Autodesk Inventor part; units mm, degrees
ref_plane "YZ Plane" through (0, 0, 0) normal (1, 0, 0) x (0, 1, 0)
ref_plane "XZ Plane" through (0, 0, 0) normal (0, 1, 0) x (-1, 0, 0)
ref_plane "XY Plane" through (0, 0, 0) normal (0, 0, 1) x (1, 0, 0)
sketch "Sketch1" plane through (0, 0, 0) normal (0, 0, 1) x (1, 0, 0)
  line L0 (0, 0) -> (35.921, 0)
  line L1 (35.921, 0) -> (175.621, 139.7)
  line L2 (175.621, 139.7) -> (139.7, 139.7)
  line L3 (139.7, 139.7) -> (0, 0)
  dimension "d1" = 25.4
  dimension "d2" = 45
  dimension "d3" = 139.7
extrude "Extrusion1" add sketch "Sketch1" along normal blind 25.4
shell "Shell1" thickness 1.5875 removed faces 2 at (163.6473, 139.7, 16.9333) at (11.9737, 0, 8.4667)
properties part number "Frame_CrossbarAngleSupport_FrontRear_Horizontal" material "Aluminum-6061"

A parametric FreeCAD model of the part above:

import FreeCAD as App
import Part
import Sketcher

V = App.Vector
Q = App.Units.Quantity


def faces_at(feature, points):
    """Names of the faces that lie closest to the given points."""
    faces = feature.Shape.Faces
    near = lambda p: min(range(len(faces)), key=lambda i: faces[i].distToShape(Part.Vertex(*p))[0])
    return sorted({f"Face{near(p) + 1}" for p in points})

doc = App.newDocument("Part")
body = doc.addObject("PartDesign::Body", "Body")

sketch1 = body.newObject("Sketcher::SketchObject", "Sketch")
sketch1.AttachmentSupport = (doc.getObject("XY_Plane"), [""])
sketch1.MapMode = "FlatFace"
sketch1.addGeometry([
    Part.LineSegment(V(140, 140, 0), V(0, 0, 0)),
    Part.LineSegment(V(0, 0, 0), V(36, 0, 0)),
    Part.LineSegment(V(36, 0, 0), V(176, 140, 0)),
    Part.LineSegment(V(176, 140, 0), V(140, 140, 0)),
], False)
sketch1.addConstraint([
    Sketcher.Constraint("Coincident", 0, 2, 1, 1),
    Sketcher.Constraint("Coincident", 1, 2, 2, 1),
    Sketcher.Constraint("Coincident", 2, 2, 3, 1),
    Sketcher.Constraint("Coincident", 3, 2, 0, 1),
    Sketcher.Constraint("Horizontal", 1),
    Sketcher.Constraint("Horizontal", 3),
    Sketcher.Constraint("Coincident", 0, 2, -1, 1),
    Sketcher.Constraint("Parallel", 0, 2),
    Sketcher.Constraint("Angle", 2, Q("45 deg")),
    Sketcher.Constraint("DistanceY", -1, 1, 2, 2, Q("5.5 in")),
    Sketcher.Constraint("DistanceX", 1, 1, 1, 2, 35.921),
])
pad1 = body.newObject("PartDesign::Pad", "Pad")
pad1.Profile = sketch1
pad1.Length = Q("1 in")
doc.recompute()

thickness = body.newObject("PartDesign::Thickness", "Thickness")
thickness.Base = (pad1, faces_at(pad1, [(163.647, 139.7, 16.933), (11.974, 0, 8.467)]))
thickness.Value = Q("0.0625 in")
thickness.Reversed = True
thickness.Join = "Intersection"

doc.recompute()
